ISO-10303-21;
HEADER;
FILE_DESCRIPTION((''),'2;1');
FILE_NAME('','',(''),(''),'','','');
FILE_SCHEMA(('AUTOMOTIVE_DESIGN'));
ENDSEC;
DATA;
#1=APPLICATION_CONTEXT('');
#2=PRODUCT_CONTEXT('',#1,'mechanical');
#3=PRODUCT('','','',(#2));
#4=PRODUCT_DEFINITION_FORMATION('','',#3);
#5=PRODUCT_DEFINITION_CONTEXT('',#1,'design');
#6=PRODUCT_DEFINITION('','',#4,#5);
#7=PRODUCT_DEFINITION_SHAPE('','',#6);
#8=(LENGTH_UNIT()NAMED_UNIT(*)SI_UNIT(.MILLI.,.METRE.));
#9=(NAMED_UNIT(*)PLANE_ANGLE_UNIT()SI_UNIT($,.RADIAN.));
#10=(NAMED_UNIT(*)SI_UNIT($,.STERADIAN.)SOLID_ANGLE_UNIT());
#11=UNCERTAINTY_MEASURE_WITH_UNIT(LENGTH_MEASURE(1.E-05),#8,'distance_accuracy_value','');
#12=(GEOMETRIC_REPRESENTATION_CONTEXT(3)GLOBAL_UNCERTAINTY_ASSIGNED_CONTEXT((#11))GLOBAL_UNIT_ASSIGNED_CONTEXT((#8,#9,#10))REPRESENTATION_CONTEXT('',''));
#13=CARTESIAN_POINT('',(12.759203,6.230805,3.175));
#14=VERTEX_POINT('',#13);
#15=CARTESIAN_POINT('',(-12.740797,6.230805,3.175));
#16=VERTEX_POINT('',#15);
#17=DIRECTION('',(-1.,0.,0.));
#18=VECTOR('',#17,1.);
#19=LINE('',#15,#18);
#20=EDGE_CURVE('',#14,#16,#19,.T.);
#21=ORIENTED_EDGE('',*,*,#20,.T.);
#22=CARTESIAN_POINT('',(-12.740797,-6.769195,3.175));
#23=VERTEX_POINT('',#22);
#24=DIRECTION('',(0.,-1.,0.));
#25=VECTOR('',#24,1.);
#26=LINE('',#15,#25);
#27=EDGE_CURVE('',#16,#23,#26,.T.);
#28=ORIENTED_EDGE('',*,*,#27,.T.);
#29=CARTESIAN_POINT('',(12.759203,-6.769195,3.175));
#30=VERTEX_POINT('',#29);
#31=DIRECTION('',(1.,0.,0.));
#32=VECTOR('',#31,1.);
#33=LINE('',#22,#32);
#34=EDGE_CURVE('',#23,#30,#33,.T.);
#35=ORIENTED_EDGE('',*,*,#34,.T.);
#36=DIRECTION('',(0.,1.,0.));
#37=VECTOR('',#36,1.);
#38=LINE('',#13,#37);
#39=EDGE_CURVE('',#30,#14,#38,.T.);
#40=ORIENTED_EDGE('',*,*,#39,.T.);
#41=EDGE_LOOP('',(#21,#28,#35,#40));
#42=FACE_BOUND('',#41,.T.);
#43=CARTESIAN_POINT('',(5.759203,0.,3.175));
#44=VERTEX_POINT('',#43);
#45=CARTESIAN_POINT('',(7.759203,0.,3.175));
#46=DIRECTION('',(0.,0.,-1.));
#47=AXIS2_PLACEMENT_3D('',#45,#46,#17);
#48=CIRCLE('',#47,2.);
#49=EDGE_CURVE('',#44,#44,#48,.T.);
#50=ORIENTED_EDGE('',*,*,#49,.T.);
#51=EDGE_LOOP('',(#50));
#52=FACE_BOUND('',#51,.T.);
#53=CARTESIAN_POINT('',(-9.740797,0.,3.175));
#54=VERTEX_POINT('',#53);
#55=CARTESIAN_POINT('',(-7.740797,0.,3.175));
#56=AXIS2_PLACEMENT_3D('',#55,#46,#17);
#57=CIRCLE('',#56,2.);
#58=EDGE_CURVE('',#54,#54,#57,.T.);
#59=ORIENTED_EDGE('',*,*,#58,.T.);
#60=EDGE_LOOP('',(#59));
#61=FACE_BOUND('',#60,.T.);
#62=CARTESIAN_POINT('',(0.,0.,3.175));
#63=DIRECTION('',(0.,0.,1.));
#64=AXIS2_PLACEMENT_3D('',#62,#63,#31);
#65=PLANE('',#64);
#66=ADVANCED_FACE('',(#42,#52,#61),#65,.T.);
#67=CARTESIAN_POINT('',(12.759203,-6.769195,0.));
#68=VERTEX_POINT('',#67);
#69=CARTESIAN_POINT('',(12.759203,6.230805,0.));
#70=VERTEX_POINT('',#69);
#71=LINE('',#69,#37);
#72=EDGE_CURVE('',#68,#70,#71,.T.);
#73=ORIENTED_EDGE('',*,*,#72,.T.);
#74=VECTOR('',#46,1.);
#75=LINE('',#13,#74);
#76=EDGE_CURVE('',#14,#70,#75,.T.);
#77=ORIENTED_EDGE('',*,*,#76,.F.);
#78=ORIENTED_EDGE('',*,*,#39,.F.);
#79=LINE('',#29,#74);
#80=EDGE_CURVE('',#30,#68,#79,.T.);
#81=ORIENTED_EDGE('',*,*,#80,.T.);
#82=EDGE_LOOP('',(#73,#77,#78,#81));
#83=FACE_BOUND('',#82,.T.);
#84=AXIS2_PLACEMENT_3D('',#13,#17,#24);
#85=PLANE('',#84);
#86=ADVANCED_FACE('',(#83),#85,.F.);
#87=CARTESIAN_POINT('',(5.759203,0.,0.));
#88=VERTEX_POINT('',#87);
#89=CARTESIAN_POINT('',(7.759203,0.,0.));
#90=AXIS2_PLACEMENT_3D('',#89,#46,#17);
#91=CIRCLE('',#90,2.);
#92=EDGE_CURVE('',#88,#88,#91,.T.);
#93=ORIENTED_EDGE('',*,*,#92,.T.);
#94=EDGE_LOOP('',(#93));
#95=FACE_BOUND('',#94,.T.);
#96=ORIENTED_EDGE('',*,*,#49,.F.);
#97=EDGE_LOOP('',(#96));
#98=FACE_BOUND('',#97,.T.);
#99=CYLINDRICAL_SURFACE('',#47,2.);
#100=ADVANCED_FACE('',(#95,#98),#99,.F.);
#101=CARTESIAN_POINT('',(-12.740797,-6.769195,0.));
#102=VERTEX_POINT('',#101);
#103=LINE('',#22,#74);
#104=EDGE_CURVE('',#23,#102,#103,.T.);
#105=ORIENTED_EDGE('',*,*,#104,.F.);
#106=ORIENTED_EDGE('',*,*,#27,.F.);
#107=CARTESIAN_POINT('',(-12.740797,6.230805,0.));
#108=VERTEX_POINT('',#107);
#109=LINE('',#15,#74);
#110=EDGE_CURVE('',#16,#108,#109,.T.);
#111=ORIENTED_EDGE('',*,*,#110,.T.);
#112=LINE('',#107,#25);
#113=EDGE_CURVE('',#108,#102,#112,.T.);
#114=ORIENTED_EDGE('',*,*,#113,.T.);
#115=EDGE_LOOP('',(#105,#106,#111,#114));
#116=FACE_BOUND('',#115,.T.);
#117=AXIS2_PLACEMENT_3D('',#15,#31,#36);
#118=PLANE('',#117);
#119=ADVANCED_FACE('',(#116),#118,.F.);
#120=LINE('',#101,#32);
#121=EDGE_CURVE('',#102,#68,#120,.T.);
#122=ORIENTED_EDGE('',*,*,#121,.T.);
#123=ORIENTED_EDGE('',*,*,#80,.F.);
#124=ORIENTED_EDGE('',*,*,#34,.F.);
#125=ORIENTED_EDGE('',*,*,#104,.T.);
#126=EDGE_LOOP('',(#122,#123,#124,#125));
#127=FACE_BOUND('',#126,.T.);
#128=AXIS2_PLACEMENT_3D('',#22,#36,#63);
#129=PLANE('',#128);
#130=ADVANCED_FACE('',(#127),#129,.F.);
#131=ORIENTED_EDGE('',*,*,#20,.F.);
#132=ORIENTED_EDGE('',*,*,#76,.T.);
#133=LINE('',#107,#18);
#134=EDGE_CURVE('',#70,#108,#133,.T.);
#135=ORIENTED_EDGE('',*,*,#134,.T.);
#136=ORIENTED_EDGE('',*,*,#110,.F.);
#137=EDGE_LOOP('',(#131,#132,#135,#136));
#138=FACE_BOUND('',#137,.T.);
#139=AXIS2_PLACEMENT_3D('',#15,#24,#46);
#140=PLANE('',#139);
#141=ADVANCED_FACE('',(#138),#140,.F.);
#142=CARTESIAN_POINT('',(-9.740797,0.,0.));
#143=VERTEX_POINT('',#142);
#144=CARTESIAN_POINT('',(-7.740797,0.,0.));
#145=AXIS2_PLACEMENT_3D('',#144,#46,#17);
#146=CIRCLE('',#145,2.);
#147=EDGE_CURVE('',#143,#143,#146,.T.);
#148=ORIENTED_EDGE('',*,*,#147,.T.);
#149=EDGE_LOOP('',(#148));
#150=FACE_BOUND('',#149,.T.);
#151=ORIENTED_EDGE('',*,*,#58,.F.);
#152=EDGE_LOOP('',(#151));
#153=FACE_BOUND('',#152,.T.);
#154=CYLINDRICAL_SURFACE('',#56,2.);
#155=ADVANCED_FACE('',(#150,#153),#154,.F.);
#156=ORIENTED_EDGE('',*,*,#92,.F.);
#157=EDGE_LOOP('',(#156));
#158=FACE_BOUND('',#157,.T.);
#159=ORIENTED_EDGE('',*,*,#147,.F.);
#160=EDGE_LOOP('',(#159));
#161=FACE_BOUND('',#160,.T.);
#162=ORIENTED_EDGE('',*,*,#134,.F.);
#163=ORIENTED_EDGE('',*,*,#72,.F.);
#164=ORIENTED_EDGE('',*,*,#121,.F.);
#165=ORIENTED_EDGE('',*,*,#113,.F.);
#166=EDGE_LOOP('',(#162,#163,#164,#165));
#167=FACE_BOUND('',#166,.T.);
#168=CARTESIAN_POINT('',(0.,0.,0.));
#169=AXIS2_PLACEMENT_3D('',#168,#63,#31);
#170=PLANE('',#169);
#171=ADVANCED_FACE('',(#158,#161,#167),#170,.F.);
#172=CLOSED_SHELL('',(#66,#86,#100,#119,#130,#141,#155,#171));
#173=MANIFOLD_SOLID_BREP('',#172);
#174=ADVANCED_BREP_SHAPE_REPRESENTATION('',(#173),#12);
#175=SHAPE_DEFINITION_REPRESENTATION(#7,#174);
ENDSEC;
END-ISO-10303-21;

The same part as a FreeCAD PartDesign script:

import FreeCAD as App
import Part
import Sketcher

V = App.Vector
Q = App.Units.Quantity


def add_polygon(sketch, points):
    """Adds a closed chain of lines whose ends are joined by coincident constraints."""
    first, n = sketch.GeometryCount, len(points)
    for a, b in zip(points, points[1:] + points[:1]):
        sketch.addGeometry(Part.LineSegment(App.Vector(*a, 0), App.Vector(*b, 0)), False)
    for i in range(n):
        sketch.addConstraint(Sketcher.Constraint("Coincident", first + i, 2, first + (i + 1) % n, 1))

doc = App.newDocument("Part")
body = doc.addObject("PartDesign::Body", "Body")

# Sketch on XY plane
sketch1 = body.newObject("Sketcher::SketchObject", "Sketch")
sketch1.AttachmentSupport = (doc.getObject("XY_Plane"), [""])
sketch1.MapMode = "FlatFace"
add_polygon(sketch1, [(-13, 6), (-13, -7), (13, -7), (13, 6)])  # lines 0-3
sketch1.addConstraint(Sketcher.Constraint("Vertical", 0))
sketch1.addConstraint(Sketcher.Constraint("Horizontal", 1))
sketch1.addConstraint(Sketcher.Constraint("Vertical", 2))
sketch1.addConstraint(Sketcher.Constraint("Horizontal", 3))
sketch1.addConstraint(Sketcher.Constraint("DistanceY", 0, 2, 0, 1, Q("13 mm")))
sketch1.addConstraint(Sketcher.Constraint("DistanceX", 1, 1, 1, 2, Q("25.5 mm")))
sketch1.addConstraint(Sketcher.Constraint("DistanceX", 0, 2, -1, 1, Q("12.740797 mm")))
sketch1.addConstraint(Sketcher.Constraint("DistanceY", 0, 2, -1, 1, Q("6.769195 mm")))
pad1 = body.newObject("PartDesign::Pad", "Pad")
pad1.Profile = sketch1
pad1.Length = 3.175

# Sketch on XY plane
sketch2 = body.newObject("Sketcher::SketchObject", "Sketch001")
sketch2.AttachmentSupport = (doc.getObject("XY_Plane"), [""])
sketch2.MapMode = "FlatFace"
sketch2.addGeometry(Part.Circle(V(7.8, 0, 0), V(0, 0, 1), 2), False)
sketch2.addGeometry(Part.Circle(V(-7.7, 0, 0), V(0, 0, 1), 2), False)
sketch2.addConstraint(Sketcher.Constraint("Equal", 0, 1))
sketch2.addConstraint(Sketcher.Constraint("PointOnObject", 0, 3, -1))
sketch2.addConstraint(Sketcher.Constraint("PointOnObject", 1, 3, -1))
sketch2.addConstraint(Sketcher.Constraint("Diameter", 0, Q("4 mm")))
sketch2.addConstraint(Sketcher.Constraint("DistanceX", 1, 3, 0, 3, Q("15.5 mm")))
sketch2.addConstraint(Sketcher.Constraint("DistanceX", -1, 1, 0, 3, Q("7.759203 mm")))
pocket1 = body.newObject("PartDesign::Pocket", "Pocket")
pocket1.Profile = sketch2
pocket1.Type = "ThroughAll"
pocket1.Reversed = True

doc.recompute()
